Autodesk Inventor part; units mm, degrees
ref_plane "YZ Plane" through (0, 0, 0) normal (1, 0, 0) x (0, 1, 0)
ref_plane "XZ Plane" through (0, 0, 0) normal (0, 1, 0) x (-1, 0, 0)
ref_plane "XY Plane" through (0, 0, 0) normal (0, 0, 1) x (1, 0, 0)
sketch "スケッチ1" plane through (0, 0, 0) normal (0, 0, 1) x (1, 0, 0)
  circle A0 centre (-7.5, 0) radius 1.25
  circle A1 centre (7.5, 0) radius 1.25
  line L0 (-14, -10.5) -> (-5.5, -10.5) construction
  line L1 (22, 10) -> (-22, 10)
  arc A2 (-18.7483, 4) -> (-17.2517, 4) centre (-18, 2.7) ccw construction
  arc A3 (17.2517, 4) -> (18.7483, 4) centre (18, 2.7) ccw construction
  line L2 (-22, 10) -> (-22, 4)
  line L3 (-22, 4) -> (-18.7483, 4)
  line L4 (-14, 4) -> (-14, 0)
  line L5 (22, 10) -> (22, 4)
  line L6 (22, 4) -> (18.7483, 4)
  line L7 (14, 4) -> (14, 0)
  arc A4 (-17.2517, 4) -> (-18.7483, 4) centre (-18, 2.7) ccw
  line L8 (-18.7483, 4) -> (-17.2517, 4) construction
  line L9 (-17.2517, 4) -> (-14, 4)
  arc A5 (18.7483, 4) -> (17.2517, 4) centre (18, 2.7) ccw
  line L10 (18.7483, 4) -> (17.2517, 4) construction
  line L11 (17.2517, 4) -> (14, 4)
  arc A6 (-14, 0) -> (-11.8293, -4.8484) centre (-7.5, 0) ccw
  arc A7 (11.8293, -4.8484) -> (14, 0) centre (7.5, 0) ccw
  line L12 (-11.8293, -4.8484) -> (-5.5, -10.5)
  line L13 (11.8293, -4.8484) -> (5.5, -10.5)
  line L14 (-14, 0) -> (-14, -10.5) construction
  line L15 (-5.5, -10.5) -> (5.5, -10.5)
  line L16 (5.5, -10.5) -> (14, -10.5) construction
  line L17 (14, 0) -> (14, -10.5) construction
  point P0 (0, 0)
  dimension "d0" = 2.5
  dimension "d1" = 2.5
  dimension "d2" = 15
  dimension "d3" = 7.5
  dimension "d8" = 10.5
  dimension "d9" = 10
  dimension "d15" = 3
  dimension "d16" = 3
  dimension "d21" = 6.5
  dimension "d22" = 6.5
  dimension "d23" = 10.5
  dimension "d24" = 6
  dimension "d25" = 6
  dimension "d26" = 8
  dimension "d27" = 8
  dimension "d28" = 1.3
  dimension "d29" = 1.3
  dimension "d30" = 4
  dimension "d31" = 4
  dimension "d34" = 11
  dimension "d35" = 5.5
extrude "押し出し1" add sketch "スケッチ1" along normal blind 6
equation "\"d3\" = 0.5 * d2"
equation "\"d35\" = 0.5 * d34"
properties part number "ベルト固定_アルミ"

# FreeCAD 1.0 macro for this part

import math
import FreeCAD as App
import Part
import Sketcher

V = App.Vector
Q = App.Units.Quantity

doc = App.newDocument("Part")
params = doc.addObject("Spreadsheet::Sheet", "Params")
for row, (alias, value) in enumerate([
    ("sketch1_diameter", "2.5 mm"),
    ("sketch1_radius", "1.5 mm"),
    ("sketch1_radius2", "6.5 mm"),
    ("sketch1_width", "11 mm"),
    ("sketch1_height", "6 mm"),
    ("pad1_length", "6 mm"),
], start=1):
    params.set(f"A{row}", alias)
    params.set(f"B{row}", "=" + value)
    params.setAlias(f"B{row}", alias)

body = doc.addObject("PartDesign::Body", "Body")

# Sketch on XY plane
sketch1 = doc.addObject("Sketcher::SketchObject", "Sketch")
body.addObject(sketch1)
sketch1.AttachmentSupport = (doc.XY_Plane, [""])
sketch1.MapMode = "FlatFace"
sketch1.addGeometry([
    Part.LineSegment(V(22, 4, 0), V(22, 10, 0)),  # 0
    Part.LineSegment(V(22, 10, 0), V(-22, 10, 0)),  # 1
    Part.LineSegment(V(-22, 10, 0), V(-22, 4, 0)),  # 2
    Part.LineSegment(V(-22, 4, 0), V(-18.7, 4, 0)),  # 3
    Part.ArcOfCircle(Part.Circle(V(-18, 2.7, 0), V(0, 0, 1), 1.5), math.radians(60), math.radians(120)),  # 4
    Part.LineSegment(V(-17.3, 4, 0), V(-14, 4, 0)),  # 5
    Part.LineSegment(V(-14, 4, 0), V(-14, 0, 0)),  # 6
    Part.ArcOfCircle(Part.Circle(V(-7.5, 0, 0), V(0, 0, 1), 6.5), math.radians(180), math.radians(228)),  # 7
    Part.LineSegment(V(-11.8, -4.8, 0), V(-5.5, -10.5, 0)),  # 8
    Part.LineSegment(V(-5.5, -10.5, 0), V(5.5, -10.5, 0)),  # 9
    Part.LineSegment(V(5.5, -10.5, 0), V(11.8, -4.8, 0)),  # 10
    Part.ArcOfCircle(Part.Circle(V(7.5, 0, 0), V(0, 0, 1), 6.5), math.radians(-48), math.radians(0)),  # 11
    Part.LineSegment(V(14, 0, 0), V(14, 4, 0)),  # 12
    Part.LineSegment(V(14, 4, 0), V(17.3, 4, 0)),  # 13
    Part.ArcOfCircle(Part.Circle(V(18, 2.7, 0), V(0, 0, 1), 1.5), math.radians(60), math.radians(120)),  # 14
    Part.LineSegment(V(18.7, 4, 0), V(22, 4, 0)),  # 15
    Part.Circle(V(-7.5, 0, 0), V(0, 0, 1), 1.2),  # 16
    Part.Circle(V(7.5, 0, 0), V(0, 0, 1), 1.2),  # 17
], False)
sketch1.addConstraint([
    Sketcher.Constraint("Coincident", 0, 2, 1, 1),
    Sketcher.Constraint("Coincident", 1, 2, 2, 1),
    Sketcher.Constraint("Coincident", 2, 2, 3, 1),
    Sketcher.Constraint("Coincident", 3, 2, 4, 2),
    Sketcher.Constraint("Coincident", 4, 1, 5, 1),
    Sketcher.Constraint("Coincident", 5, 2, 6, 1),
    Sketcher.Constraint("Tangent", 6, 2, 7, 1),
    Sketcher.Constraint("Tangent", 7, 2, 8, 1),
    Sketcher.Constraint("Coincident", 8, 2, 9, 1),
    Sketcher.Constraint("Coincident", 9, 2, 10, 1),
    Sketcher.Constraint("Tangent", 10, 2, 11, 1),
    Sketcher.Constraint("Tangent", 11, 2, 12, 1),
    Sketcher.Constraint("Coincident", 12, 2, 13, 1),
    Sketcher.Constraint("Coincident", 13, 2, 14, 2),
    Sketcher.Constraint("Coincident", 14, 1, 15, 1),
    Sketcher.Constraint("Coincident", 15, 2, 0, 1),
    Sketcher.Constraint("Vertical", 0),
    Sketcher.Constraint("Horizontal", 1),
    Sketcher.Constraint("Vertical", 2),
    Sketcher.Constraint("Horizontal", 3),
    Sketcher.Constraint("Horizontal", 5),
    Sketcher.Constraint("Vertical", 6),
    Sketcher.Constraint("Horizontal", 9),
    Sketcher.Constraint("Vertical", 12),
    Sketcher.Constraint("Horizontal", 13),
    Sketcher.Constraint("Horizontal", 15),
    Sketcher.Constraint("Coincident", 16, 3, 7, 3),
    Sketcher.Constraint("Coincident", 17, 3, 11, 3),
    Sketcher.Constraint("Equal", 7, 11),
    Sketcher.Constraint("Equal", 4, 14),
    Sketcher.Constraint("Equal", 16, 17),
    Sketcher.Constraint("Symmetric", 7, 3, 11, 3, -1, 1),
    Sketcher.Constraint("Symmetric", 4, 3, 14, 3, -2),
    Sketcher.Constraint("Symmetric", 7, 2, 10, 2, -2),
    Sketcher.Constraint("Symmetric", 2, 2, 15, 2, -2),
    Sketcher.Constraint("Horizontal", 3, 2, 4, 1),
    Sketcher.Constraint("Horizontal", 5, 2, 12, 2),
    Sketcher.Constraint("Equal", 3, 5),
    Sketcher.Constraint("Diameter", 16, Q("2.5 mm")),
    Sketcher.Constraint("Radius", 4, Q("1.5 mm")),
    Sketcher.Constraint("Radius", 7, Q("6.5 mm")),
    Sketcher.Constraint("DistanceX", 9, 1, 9, 2, Q("11 mm")),
    Sketcher.Constraint("DistanceY", 0, 1, 0, 2, Q("6 mm")),
    Sketcher.Constraint("DistanceY", 6, 2, 6, 1, Q("4 mm")),
    Sketcher.Constraint("DistanceX", 7, 3, 11, 3, Q("15 mm")),
    Sketcher.Constraint("DistanceX", 14, 3, 0, 2, Q("4 mm")),
    Sketcher.Constraint("DistanceY", 8, 2, -1, 1, Q("10.5 mm")),
    Sketcher.Constraint("DistanceY", 4, 3, 2, 2, Q("1.3 mm")),
])
sketch1.setExpression("Constraints[38]", "Params.sketch1_diameter")
sketch1.setExpression("Constraints[39]", "Params.sketch1_radius")
sketch1.setExpression("Constraints[40]", "Params.sketch1_radius2")
sketch1.setExpression("Constraints[41]", "Params.sketch1_width")
sketch1.setExpression("Constraints[42]", "Params.sketch1_height")
pad1 = doc.addObject("PartDesign::Pad", "Pad")
body.addObject(pad1)
pad1.Profile = sketch1
pad1.setExpression("Length", "Params.pad1_length")

doc.recompute()
